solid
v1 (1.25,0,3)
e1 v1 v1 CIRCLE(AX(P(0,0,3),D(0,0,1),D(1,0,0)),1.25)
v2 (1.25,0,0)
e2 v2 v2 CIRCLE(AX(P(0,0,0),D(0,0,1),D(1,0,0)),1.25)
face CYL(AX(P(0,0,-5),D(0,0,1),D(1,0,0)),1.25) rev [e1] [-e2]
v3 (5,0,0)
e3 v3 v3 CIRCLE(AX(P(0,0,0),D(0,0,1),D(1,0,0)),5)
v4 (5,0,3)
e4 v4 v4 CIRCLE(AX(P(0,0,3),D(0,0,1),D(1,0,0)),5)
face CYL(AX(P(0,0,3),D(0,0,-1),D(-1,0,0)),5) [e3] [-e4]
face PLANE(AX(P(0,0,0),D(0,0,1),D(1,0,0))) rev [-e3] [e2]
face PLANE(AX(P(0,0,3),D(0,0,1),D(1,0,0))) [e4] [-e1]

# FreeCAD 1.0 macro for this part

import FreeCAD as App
import Part
import Sketcher

V = App.Vector

doc = App.newDocument("Part")
body = doc.addObject("PartDesign::Body", "Body")

# Sketch on XY plane
sketch1 = doc.addObject("Sketcher::SketchObject", "Sketch")
body.addObject(sketch1)
sketch1.AttachmentSupport = (doc.XY_Plane, [""])
sketch1.MapMode = "FlatFace"
sketch1.addGeometry(Part.Circle(V(0, 0, 0), V(0, 0, 1), 5), False)
sketch1.addConstraint(Sketcher.Constraint("Coincident", 0, 3, -1, 1))
sketch1.addConstraint(Sketcher.Constraint("Diameter", 0, 10.0))
pad1 = doc.addObject("PartDesign::Pad", "Pad")
body.addObject(pad1)
pad1.Profile = sketch1
pad1.Length = 3

# Sketch on XY plane
sketch2 = doc.addObject("Sketcher::SketchObject", "Sketch001")
body.addObject(sketch2)
sketch2.AttachmentSupport = (doc.XY_Plane, [""])
sketch2.MapMode = "FlatFace"
sketch2.AttachmentOffset = App.Placement(V(0, 0, 3), App.Rotation())
sketch2.addGeometry(Part.Circle(V(0, 0, 0), V(0, 0, 1), 1.2), False)
sketch2.addConstraint(Sketcher.Constraint("Coincident", 0, 3, -1, 1))
sketch2.addConstraint(Sketcher.Constraint("Diameter", 0, 2.5))
pocket1 = doc.addObject("PartDesign::Pocket", "Pocket")
body.addObject(pocket1)
pocket1.Profile = sketch2
pocket1.Length = 8

doc.recompute()
